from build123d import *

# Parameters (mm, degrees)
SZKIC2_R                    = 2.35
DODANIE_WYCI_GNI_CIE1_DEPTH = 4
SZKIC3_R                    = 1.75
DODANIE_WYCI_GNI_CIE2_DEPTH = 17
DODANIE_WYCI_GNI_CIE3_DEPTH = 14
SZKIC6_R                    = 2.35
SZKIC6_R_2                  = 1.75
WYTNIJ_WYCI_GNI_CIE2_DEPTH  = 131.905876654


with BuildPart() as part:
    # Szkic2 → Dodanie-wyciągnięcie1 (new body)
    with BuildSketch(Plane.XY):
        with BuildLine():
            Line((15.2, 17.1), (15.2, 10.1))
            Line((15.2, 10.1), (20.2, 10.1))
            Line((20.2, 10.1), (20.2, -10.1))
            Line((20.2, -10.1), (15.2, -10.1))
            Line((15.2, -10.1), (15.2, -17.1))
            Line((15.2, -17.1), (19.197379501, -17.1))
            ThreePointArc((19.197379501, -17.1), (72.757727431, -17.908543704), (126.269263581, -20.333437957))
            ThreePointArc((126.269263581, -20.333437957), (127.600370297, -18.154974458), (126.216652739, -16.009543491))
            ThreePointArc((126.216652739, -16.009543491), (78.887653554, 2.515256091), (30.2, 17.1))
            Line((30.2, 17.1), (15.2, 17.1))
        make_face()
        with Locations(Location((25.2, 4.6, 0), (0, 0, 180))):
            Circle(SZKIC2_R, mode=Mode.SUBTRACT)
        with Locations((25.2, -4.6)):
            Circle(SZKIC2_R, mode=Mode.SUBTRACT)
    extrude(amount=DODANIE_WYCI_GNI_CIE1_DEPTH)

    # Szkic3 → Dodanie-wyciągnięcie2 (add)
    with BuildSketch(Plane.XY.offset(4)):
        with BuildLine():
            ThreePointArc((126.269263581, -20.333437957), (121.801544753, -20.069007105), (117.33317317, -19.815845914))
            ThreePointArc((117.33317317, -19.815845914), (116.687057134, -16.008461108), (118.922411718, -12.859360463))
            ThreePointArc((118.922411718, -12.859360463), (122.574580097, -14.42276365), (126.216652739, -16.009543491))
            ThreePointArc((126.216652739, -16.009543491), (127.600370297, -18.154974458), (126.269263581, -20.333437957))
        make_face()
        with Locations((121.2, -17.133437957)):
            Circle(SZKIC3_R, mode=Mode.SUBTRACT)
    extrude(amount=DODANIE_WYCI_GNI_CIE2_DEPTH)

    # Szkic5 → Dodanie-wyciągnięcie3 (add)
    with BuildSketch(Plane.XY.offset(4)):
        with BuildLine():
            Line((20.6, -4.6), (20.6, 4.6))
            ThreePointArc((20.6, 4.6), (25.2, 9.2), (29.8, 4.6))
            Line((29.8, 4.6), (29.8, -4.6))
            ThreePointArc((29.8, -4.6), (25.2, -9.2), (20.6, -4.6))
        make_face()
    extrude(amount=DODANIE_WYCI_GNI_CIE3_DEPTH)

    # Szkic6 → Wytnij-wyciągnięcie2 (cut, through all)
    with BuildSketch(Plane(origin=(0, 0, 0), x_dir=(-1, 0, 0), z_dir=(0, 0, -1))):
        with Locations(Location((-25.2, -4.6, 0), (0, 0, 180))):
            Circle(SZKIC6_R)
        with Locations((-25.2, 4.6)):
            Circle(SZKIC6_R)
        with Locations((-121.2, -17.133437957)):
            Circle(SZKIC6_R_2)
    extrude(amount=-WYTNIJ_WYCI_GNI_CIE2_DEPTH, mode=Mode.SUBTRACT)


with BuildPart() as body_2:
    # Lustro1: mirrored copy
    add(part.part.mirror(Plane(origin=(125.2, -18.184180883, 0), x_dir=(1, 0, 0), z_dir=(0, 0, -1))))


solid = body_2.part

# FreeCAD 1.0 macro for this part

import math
import FreeCAD as App
import Part
import Sketcher

doc = App.newDocument("Part")
body = doc.addObject("PartDesign::Body", "Body")

# Sketch on XY plane
sketch1 = body.newObject("Sketcher::SketchObject", "Sketch")
sketch1.AttachmentSupport = (doc.getObject("XY_Plane"), [""])
sketch1.MapMode = "FlatFace"
sketch1.addGeometry(Part.LineSegment(App.Vector(15.2, 17.1, 0), App.Vector(15.2, 10.1, 0)), False)
sketch1.addGeometry(Part.LineSegment(App.Vector(15.2, 10.1, 0), App.Vector(20.2, 10.1, 0)), False)
sketch1.addGeometry(Part.LineSegment(App.Vector(20.2, 10.1, 0), App.Vector(20.2, -10.1, 0)), False)
sketch1.addGeometry(Part.LineSegment(App.Vector(20.2, -10.1, 0), App.Vector(15.2, -10.1, 0)), False)
sketch1.addGeometry(Part.LineSegment(App.Vector(15.2, -10.1, 0), App.Vector(15.2, -17.1, 0)), False)
sketch1.addGeometry(Part.LineSegment(App.Vector(15.2, -17.1, 0), App.Vector(19.19738, -17.1, 0)), False)
sketch1.addGeometry(Part.ArcOfCircle(Part.Circle(App.Vector(19.19738, -1791.502916, 0), App.Vector(0, 0, 1), 1774.402916), math.radians(86.540529), math.radians(90)), False)
sketch1.addGeometry(Part.ArcOfCircle(Part.Circle(App.Vector(125.2, -18.184181, 0), App.Vector(0, 0, 1), 2.400548), math.radians(-63.54948), math.radians(64.9437)), False)
sketch1.addGeometry(Part.ArcOfCircle(Part.Circle(App.Vector(-123.166643, -583.435959, 0), App.Vector(0, 0, 1), 619.810266), math.radians(66.274563), math.radians(75.673848)), False)
sketch1.addGeometry(Part.LineSegment(App.Vector(30.2, 17.1, 0), App.Vector(15.2, 17.1, 0)), False)
sketch1.addGeometry(Part.Circle(App.Vector(25.2, -4.6, 0), App.Vector(0, 0, 1), 2.35), False)
sketch1.addGeometry(Part.Circle(App.Vector(25.2, 4.6, 0), App.Vector(0, 0, 1), 2.35), False)
sketch1.addConstraint(Sketcher.Constraint("Coincident", 0, 2, 1, 1))
sketch1.addConstraint(Sketcher.Constraint("Coincident", 1, 2, 2, 1))
sketch1.addConstraint(Sketcher.Constraint("Coincident", 2, 2, 3, 1))
sketch1.addConstraint(Sketcher.Constraint("Coincident", 3, 2, 4, 1))
sketch1.addConstraint(Sketcher.Constraint("Coincident", 4, 2, 5, 1))
sketch1.addConstraint(Sketcher.Constraint("Tangent", 5, 2, 6, 2))
sketch1.addConstraint(Sketcher.Constraint("Coincident", 6, 1, 7, 1))
sketch1.addConstraint(Sketcher.Constraint("Coincident", 7, 2, 8, 1))
sketch1.addConstraint(Sketcher.Constraint("Coincident", 8, 2, 9, 1))
sketch1.addConstraint(Sketcher.Constraint("Coincident", 9, 2, 0, 1))
sketch1.addConstraint(Sketcher.Constraint("Vertical", 0))
sketch1.addConstraint(Sketcher.Constraint("Horizontal", 1))
sketch1.addConstraint(Sketcher.Constraint("Vertical", 2))
sketch1.addConstraint(Sketcher.Constraint("Horizontal", 3))
sketch1.addConstraint(Sketcher.Constraint("Vertical", 4))
sketch1.addConstraint(Sketcher.Constraint("Horizontal", 5))
sketch1.addConstraint(Sketcher.Constraint("Horizontal", 9))
sketch1.addConstraint(Sketcher.Constraint("Equal", 10, 11))
sketch1.addConstraint(Sketcher.Constraint("Symmetric", 10, 3, 11, 3, -1))
sketch1.addConstraint(Sketcher.Constraint("Symmetric", 0, 2, 3, 2, -1))
sketch1.addConstraint(Sketcher.Constraint("Equal", 0, 4))
sketch1.addConstraint(Sketcher.Constraint("Diameter", 10, 4.7))
sketch1.addConstraint(Sketcher.Constraint("DistanceX", 1, 1, 1, 2, 5.0))
sketch1.addConstraint(Sketcher.Constraint("DistanceX", 9, 2, 9, 1, 15.0))
sketch1.addConstraint(Sketcher.Constraint("DistanceY", 0, 2, 0, 1, 7.0))
sketch1.addConstraint(Sketcher.Constraint("DistanceY", 2, 2, 2, 1, 20.2))
sketch1.addConstraint(Sketcher.Constraint("DistanceX", 10, 3, 7, 3, 100.0))
sketch1.addConstraint(Sketcher.Constraint("DistanceX", 0, 2, 11, 3, 10.0))
sketch1.addConstraint(Sketcher.Constraint("DistanceX", -1, 1, 7, 3, 125.2))
sketch1.addConstraint(Sketcher.Constraint("DistanceY", 10, 3, -1, 1, 4.6))
sketch1.addConstraint(Sketcher.Constraint("Radius", 6, 1774.402916))
sketch1.addConstraint(Sketcher.Constraint("Radius", 7, 2.400548))
sketch1.addConstraint(Sketcher.Constraint("Radius", 8, 619.810266))
sketch1.addConstraint(Sketcher.Constraint("DistanceX", 5, 1, 5, 2, 3.99738))
sketch1.addConstraint(Sketcher.Constraint("DistanceY", 7, 3, -1, 1, 18.184181))
sketch1.addConstraint(Sketcher.Constraint("DistanceY", 8, 3, -1, 1, 583.435959))
pad1 = body.newObject("PartDesign::Pad", "Pad")
pad1.Profile = sketch1
pad1.Length = 4

# Sketch on XY plane
sketch2 = body.newObject("Sketcher::SketchObject", "Sketch001")
sketch2.AttachmentSupport = (doc.getObject("XY_Plane"), [""])
sketch2.MapMode = "FlatFace"
sketch2.AttachmentOffset = App.Placement(App.Vector(0, 0, 4), App.Rotation())
sketch2.addGeometry(Part.ArcOfCircle(Part.Circle(App.Vector(19.197379, -1791.502932, 0), App.Vector(0, 0, 1), 1774.402932), math.radians(86.540529), math.radians(86.82956)), False)
sketch2.addGeometry(Part.ArcOfCircle(Part.Circle(App.Vector(125.2, -18.184181, 0), App.Vector(0, 0, 1), 2.400548), math.radians(-63.54948), math.radians(64.9437)), False)
sketch2.addGeometry(Part.ArcOfCircle(Part.Circle(App.Vector(-123.166644, -583.435961, 0), App.Vector(0, 0, 1), 619.810267), math.radians(66.274563), math.radians(67.009049)), False)
sketch2.addGeometry(Part.ArcOfCircle(Part.Circle(App.Vector(121.606035, -17.132222, 0), App.Vector(0, 0, 1), 5.04571), math.radians(122.13138), math.radians(212.13138)), False)
sketch2.addGeometry(Part.Circle(App.Vector(121.2, -17.133438, 0), App.Vector(0, 0, 1), 1.75), False)
sketch2.addConstraint(Sketcher.Constraint("Coincident", 0, 1, 1, 1))
sketch2.addConstraint(Sketcher.Constraint("Coincident", 1, 2, 2, 1))
sketch2.addConstraint(Sketcher.Constraint("Coincident", 2, 2, 3, 1))
sketch2.addConstraint(Sketcher.Constraint("Coincident", 3, 2, 0, 2))
sketch2.addConstraint(Sketcher.Constraint("Diameter", 4, 3.5))
sketch2.addConstraint(Sketcher.Constraint("DistanceX", 4, 3, 1, 3, 4.0))
sketch2.addConstraint(Sketcher.Constraint("DistanceX", -1, 1, 1, 3, 125.2))
sketch2.addConstraint(Sketcher.Constraint("DistanceY", 0, 1, 4, 3, 3.2))
sketch2.addConstraint(Sketcher.Constraint("Radius", 0, 1774.402932))
sketch2.addConstraint(Sketcher.Constraint("Radius", 3, 5.04571))
sketch2.addConstraint(Sketcher.Constraint("Radius", 1, 2.400548))
sketch2.addConstraint(Sketcher.Constraint("Radius", 2, 619.810267))
sketch2.addConstraint(Sketcher.Constraint("DistanceX", -1, 1, 0, 3, 19.197379))
sketch2.addConstraint(Sketcher.Constraint("DistanceY", 0, 3, -1, 1, 1791.502932))
sketch2.addConstraint(Sketcher.Constraint("DistanceY", 1, 3, -1, 1, 18.184181))
sketch2.addConstraint(Sketcher.Constraint("DistanceY", 2, 3, -1, 1, 583.435961))
sketch2.addConstraint(Sketcher.Constraint("DistanceY", 1, 3, 3, 3, 1.051958))
sketch2.addConstraint(Sketcher.Constraint("DistanceX", 2, 3, 3, 3, 244.772679))
sketch2.addConstraint(Sketcher.Constraint("DistanceY", 3, 3, 1, 2, 1.122679))
pad2 = body.newObject("PartDesign::Pad", "Pad001")
pad2.Profile = sketch2
pad2.Length = 17

# Sketch on XY plane
sketch3 = body.newObject("Sketcher::SketchObject", "Sketch002")
sketch3.AttachmentSupport = (doc.getObject("XY_Plane"), [""])
sketch3.MapMode = "FlatFace"
sketch3.AttachmentOffset = App.Placement(App.Vector(0, 0, 4), App.Rotation())
sketch3.addGeometry(Part.LineSegment(App.Vector(20.6, 4.6, 0), App.Vector(20.6, -4.6, 0)), False)
sketch3.addGeometry(Part.ArcOfCircle(Part.Circle(App.Vector(25.2, -4.6, 0), App.Vector(0, 0, 1), 4.6), math.radians(180), math.radians(360)), False)
sketch3.addGeometry(Part.LineSegment(App.Vector(29.8, -4.6, 0), App.Vector(29.8, 4.6, 0)), False)
sketch3.addGeometry(Part.ArcOfCircle(Part.Circle(App.Vector(25.2, 4.6, 0), App.Vector(0, 0, 1), 4.6), math.radians(0), math.radians(180)), False)
sketch3.addConstraint(Sketcher.Constraint("Tangent", 0, 2, 1, 1))
sketch3.addConstraint(Sketcher.Constraint("Tangent", 1, 2, 2, 1))
sketch3.addConstraint(Sketcher.Constraint("Tangent", 2, 2, 3, 1))
sketch3.addConstraint(Sketcher.Constraint("Tangent", 3, 2, 0, 1))
sketch3.addConstraint(Sketcher.Constraint("Vertical", 0))
sketch3.addConstraint(Sketcher.Constraint("Vertical", 2))
sketch3.addConstraint(Sketcher.Constraint("Radius", 1, 4.6))
sketch3.addConstraint(Sketcher.Constraint("DistanceY", 0, 2, 0, 1, 9.2))
sketch3.addConstraint(Sketcher.Constraint("DistanceX", -1, 1, 1, 3, 25.2))
sketch3.addConstraint(Sketcher.Constraint("DistanceY", 1, 3, -1, 1, 4.6))
pad3 = body.newObject("PartDesign::Pad", "Pad002")
pad3.Profile = sketch3
pad3.Length = 14

# Sketch on XY plane
sketch4 = body.newObject("Sketcher::SketchObject", "Sketch003")
sketch4.AttachmentSupport = (doc.getObject("XY_Plane"), [""])
sketch4.MapMode = "FlatFace"
sketch4.addGeometry(Part.Circle(App.Vector(25.2, -4.6, 0), App.Vector(0, 0, 1), 2.35), False)
sketch4.addGeometry(Part.Circle(App.Vector(25.2, 4.6, 0), App.Vector(0, 0, 1), 2.35), False)
sketch4.addGeometry(Part.Circle(App.Vector(121.2, -17.133438, 0), App.Vector(0, 0, 1), 1.75), False)
sketch4.addConstraint(Sketcher.Constraint("Equal", 0, 1))
sketch4.addConstraint(Sketcher.Constraint("Symmetric", 0, 3, 1, 3, -1))
sketch4.addConstraint(Sketcher.Constraint("Diameter", 0, 4.7))
sketch4.addConstraint(Sketcher.Constraint("Diameter", 2, 3.5))
sketch4.addConstraint(Sketcher.Constraint("DistanceX", 0, 3, 2, 3, 96.0))
sketch4.addConstraint(Sketcher.Constraint("DistanceX", -1, 1, 0, 3, 25.2))
sketch4.addConstraint(Sketcher.Constraint("DistanceY", 0, 3, -1, 1, 4.6))
sketch4.addConstraint(Sketcher.Constraint("DistanceY", 2, 3, -1, 1, 17.133438))
pocket1 = body.newObject("PartDesign::Pocket", "Pocket")
pocket1.Profile = sketch4
pocket1.Type = "ThroughAll"
pocket1.Reversed = True
body2 = doc.addObject("PartDesign::Body", "Body001")
doc.recompute()

mirroring = doc.addObject("Part::Mirroring", "Mirroring")
mirroring.Source = body
mirroring.Base = App.Vector(125.2, -18.184181, 0)
mirroring.Normal = App.Vector(0, 0, -1)
body2.BaseFeature = mirroring
doc.recompute()
body.Visibility = False
mirroring.Visibility = False

doc.recompute()
